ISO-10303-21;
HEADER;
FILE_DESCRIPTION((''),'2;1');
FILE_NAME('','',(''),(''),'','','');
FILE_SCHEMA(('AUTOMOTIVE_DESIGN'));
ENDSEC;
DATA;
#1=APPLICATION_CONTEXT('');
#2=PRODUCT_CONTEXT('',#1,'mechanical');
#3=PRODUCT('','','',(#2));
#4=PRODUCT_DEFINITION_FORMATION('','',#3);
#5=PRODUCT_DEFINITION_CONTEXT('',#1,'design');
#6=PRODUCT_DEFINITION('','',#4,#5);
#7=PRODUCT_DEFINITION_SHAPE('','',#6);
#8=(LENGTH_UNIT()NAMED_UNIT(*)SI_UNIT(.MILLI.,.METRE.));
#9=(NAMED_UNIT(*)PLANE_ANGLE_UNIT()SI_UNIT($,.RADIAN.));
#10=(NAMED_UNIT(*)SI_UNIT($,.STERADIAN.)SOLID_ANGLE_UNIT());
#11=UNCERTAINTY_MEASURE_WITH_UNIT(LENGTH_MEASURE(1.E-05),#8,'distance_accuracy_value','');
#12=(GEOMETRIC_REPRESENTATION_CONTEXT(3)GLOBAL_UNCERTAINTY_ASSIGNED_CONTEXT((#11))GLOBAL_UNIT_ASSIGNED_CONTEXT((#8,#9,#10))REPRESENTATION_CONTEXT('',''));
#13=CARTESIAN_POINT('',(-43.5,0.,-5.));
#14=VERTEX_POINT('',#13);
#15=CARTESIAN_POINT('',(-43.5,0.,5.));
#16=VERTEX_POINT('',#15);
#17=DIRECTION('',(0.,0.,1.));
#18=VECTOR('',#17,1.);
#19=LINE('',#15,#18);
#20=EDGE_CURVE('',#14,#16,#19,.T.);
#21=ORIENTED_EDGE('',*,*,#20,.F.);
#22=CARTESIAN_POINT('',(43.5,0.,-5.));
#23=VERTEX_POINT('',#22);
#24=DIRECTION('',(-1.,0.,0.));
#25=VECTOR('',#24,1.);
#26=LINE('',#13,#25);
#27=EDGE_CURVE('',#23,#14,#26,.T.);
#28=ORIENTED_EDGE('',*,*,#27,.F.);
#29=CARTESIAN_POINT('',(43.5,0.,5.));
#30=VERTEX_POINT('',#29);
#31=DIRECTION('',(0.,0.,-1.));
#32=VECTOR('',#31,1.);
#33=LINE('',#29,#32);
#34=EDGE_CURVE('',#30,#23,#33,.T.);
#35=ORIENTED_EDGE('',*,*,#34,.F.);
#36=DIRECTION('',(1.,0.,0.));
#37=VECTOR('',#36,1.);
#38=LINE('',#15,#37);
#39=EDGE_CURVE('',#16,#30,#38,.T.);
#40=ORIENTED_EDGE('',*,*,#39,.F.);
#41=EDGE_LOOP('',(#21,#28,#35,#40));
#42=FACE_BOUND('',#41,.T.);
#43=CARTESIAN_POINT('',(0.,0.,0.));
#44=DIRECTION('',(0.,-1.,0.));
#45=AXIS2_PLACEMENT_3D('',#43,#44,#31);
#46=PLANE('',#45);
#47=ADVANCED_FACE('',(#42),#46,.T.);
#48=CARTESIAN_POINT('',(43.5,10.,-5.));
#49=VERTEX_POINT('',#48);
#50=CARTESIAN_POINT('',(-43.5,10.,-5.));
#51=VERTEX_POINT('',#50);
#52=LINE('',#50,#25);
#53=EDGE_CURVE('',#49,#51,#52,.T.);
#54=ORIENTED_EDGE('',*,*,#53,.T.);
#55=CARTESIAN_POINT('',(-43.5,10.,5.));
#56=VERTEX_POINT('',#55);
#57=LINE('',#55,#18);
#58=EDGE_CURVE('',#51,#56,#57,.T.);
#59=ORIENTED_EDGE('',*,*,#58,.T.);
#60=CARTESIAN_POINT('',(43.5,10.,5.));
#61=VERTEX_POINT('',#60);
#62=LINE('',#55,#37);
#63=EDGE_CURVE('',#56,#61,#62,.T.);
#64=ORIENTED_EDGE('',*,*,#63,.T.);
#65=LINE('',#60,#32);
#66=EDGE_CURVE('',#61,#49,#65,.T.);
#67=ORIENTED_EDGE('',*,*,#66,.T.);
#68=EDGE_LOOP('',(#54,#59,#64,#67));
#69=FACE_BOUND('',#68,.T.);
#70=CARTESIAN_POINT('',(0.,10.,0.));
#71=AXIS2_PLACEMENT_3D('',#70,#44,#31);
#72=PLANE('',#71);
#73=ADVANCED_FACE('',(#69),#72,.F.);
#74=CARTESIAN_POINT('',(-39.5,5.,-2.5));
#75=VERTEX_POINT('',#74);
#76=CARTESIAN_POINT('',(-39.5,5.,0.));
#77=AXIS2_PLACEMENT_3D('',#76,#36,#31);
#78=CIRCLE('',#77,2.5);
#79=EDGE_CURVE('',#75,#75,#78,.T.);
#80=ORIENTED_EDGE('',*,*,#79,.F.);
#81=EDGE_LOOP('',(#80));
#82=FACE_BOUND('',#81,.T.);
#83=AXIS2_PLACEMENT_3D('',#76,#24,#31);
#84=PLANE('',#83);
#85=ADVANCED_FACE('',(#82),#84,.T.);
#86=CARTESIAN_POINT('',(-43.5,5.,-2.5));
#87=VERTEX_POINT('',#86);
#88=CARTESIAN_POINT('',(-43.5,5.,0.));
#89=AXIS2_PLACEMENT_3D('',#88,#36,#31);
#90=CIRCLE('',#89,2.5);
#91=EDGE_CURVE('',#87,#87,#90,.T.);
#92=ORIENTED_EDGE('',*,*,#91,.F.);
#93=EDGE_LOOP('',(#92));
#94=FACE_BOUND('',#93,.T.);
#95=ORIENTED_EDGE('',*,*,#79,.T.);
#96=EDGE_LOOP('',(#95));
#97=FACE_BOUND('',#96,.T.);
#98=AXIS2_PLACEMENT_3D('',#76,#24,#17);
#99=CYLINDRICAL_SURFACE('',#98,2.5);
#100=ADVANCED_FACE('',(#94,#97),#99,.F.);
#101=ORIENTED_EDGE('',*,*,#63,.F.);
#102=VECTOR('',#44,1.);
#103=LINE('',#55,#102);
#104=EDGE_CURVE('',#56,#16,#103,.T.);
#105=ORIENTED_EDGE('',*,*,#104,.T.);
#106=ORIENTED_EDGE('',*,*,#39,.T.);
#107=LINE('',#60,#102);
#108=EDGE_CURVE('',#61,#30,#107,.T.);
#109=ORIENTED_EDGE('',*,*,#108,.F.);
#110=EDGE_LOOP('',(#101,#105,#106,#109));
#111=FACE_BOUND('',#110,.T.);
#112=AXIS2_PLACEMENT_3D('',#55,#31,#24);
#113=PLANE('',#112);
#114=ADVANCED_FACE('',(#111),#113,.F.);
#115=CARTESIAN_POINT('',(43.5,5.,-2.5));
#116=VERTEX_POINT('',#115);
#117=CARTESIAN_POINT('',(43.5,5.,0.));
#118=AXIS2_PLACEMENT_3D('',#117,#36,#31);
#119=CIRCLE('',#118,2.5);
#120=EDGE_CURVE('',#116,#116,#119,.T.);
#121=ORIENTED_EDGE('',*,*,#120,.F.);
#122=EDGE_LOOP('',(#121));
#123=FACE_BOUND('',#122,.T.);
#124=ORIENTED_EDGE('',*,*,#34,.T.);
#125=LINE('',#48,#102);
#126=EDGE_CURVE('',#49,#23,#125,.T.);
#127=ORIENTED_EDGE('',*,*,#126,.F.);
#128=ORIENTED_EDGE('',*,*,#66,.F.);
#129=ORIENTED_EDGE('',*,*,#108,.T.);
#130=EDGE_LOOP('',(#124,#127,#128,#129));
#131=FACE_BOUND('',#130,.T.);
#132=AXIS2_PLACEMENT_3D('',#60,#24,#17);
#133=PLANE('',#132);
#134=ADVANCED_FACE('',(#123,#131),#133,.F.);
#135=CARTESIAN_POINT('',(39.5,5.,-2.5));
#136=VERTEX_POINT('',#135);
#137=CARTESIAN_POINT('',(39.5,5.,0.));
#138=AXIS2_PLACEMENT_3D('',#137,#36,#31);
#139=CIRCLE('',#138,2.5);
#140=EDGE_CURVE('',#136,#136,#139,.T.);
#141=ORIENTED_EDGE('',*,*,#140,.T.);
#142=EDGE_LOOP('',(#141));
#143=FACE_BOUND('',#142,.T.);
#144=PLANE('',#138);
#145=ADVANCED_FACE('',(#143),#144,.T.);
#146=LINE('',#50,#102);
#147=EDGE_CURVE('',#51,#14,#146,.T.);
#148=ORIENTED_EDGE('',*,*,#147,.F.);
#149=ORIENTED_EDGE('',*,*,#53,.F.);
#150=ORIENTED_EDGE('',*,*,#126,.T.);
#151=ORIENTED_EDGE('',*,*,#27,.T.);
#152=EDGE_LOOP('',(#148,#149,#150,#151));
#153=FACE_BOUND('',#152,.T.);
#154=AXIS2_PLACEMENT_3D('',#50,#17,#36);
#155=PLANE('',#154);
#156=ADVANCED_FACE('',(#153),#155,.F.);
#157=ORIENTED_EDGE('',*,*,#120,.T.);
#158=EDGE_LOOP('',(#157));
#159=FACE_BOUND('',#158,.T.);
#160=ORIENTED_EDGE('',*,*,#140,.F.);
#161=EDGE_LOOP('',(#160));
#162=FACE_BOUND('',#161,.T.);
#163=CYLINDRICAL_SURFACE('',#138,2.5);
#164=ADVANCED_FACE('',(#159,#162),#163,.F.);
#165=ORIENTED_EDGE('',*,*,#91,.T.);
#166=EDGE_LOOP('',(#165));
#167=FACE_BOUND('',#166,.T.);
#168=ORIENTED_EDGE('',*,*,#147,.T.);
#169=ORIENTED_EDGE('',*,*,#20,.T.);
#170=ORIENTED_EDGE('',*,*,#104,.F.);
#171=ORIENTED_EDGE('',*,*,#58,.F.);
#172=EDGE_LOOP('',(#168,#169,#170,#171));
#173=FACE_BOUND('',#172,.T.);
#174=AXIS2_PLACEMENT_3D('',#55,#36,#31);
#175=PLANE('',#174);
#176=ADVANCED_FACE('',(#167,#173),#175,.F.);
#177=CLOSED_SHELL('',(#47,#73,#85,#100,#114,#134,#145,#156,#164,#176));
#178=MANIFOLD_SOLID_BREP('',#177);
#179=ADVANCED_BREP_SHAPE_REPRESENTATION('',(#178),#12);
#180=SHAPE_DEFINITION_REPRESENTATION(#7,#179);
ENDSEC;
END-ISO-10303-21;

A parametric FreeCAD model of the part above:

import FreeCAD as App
import Part
import Sketcher

V = App.Vector
Q = App.Units.Quantity

doc = App.newDocument("Part")
body = doc.addObject("PartDesign::Body", "Body")

# Sketch on XZ plane
sketch1 = doc.addObject("Sketcher::SketchObject", "Sketch")
body.addObject(sketch1)
sketch1.AttachmentSupport = (doc.XZ_Plane, [""])
sketch1.MapMode = "FlatFace"
sketch1.addGeometry([
    Part.LineSegment(V(-44, -5, 0), V(-44, 5, 0)),
    Part.LineSegment(V(-44, 5, 0), V(44, 5, 0)),
    Part.LineSegment(V(44, 5, 0), V(44, -5, 0)),
    Part.LineSegment(V(44, -5, 0), V(-44, -5, 0)),
], False)
sketch1.addConstraint([
    Sketcher.Constraint("Coincident", 0, 2, 1, 1),
    Sketcher.Constraint("Coincident", 1, 2, 2, 1),
    Sketcher.Constraint("Coincident", 2, 2, 3, 1),
    Sketcher.Constraint("Coincident", 3, 2, 0, 1),
    Sketcher.Constraint("Vertical", 0),
    Sketcher.Constraint("Horizontal", 1),
    Sketcher.Constraint("Vertical", 2),
    Sketcher.Constraint("Horizontal", 3),
    Sketcher.Constraint("Symmetric", 0, 2, 2, 2, -1, 1),
    Sketcher.Constraint("DistanceX", 1, 1, 1, 2, Q("87 mm")),
    Sketcher.Constraint("DistanceY", 0, 1, 0, 2, Q("10 mm")),
])
pad1 = doc.addObject("PartDesign::Pad", "Pad")
body.addObject(pad1)
pad1.Profile = sketch1
pad1.Length = 10
pad1.Reversed = True

# Sketch on YZ plane
sketch2 = doc.addObject("Sketcher::SketchObject", "Sketch001")
body.addObject(sketch2)
sketch2.AttachmentSupport = (doc.YZ_Plane, [""])
sketch2.MapMode = "FlatFace"
sketch2.AttachmentOffset = App.Placement(V(0, 0, 43.5), App.Rotation())
sketch2.addGeometry(Part.Circle(V(5, 0, 0), V(0, 0, 1), 2.5), False)
sketch2.addConstraint([
    Sketcher.Constraint("PointOnObject", 0, 3, -1),
    Sketcher.Constraint("Diameter", 0, Q("5 mm")),
    Sketcher.Constraint("DistanceX", -1, 1, 0, 3, Q("5 mm")),
])
pocket1 = doc.addObject("PartDesign::Pocket", "Pocket")
body.addObject(pocket1)
pocket1.Profile = sketch2
pocket1.Length = 4
doc.recompute()

mirrored = doc.addObject("PartDesign::Mirrored", "Mirrored")
body.addObject(mirrored)
mirrored.Originals = [pocket1]
mirrored.MirrorPlane = (doc.YZ_Plane, [""])
body.Tip = mirrored

doc.recompute()
